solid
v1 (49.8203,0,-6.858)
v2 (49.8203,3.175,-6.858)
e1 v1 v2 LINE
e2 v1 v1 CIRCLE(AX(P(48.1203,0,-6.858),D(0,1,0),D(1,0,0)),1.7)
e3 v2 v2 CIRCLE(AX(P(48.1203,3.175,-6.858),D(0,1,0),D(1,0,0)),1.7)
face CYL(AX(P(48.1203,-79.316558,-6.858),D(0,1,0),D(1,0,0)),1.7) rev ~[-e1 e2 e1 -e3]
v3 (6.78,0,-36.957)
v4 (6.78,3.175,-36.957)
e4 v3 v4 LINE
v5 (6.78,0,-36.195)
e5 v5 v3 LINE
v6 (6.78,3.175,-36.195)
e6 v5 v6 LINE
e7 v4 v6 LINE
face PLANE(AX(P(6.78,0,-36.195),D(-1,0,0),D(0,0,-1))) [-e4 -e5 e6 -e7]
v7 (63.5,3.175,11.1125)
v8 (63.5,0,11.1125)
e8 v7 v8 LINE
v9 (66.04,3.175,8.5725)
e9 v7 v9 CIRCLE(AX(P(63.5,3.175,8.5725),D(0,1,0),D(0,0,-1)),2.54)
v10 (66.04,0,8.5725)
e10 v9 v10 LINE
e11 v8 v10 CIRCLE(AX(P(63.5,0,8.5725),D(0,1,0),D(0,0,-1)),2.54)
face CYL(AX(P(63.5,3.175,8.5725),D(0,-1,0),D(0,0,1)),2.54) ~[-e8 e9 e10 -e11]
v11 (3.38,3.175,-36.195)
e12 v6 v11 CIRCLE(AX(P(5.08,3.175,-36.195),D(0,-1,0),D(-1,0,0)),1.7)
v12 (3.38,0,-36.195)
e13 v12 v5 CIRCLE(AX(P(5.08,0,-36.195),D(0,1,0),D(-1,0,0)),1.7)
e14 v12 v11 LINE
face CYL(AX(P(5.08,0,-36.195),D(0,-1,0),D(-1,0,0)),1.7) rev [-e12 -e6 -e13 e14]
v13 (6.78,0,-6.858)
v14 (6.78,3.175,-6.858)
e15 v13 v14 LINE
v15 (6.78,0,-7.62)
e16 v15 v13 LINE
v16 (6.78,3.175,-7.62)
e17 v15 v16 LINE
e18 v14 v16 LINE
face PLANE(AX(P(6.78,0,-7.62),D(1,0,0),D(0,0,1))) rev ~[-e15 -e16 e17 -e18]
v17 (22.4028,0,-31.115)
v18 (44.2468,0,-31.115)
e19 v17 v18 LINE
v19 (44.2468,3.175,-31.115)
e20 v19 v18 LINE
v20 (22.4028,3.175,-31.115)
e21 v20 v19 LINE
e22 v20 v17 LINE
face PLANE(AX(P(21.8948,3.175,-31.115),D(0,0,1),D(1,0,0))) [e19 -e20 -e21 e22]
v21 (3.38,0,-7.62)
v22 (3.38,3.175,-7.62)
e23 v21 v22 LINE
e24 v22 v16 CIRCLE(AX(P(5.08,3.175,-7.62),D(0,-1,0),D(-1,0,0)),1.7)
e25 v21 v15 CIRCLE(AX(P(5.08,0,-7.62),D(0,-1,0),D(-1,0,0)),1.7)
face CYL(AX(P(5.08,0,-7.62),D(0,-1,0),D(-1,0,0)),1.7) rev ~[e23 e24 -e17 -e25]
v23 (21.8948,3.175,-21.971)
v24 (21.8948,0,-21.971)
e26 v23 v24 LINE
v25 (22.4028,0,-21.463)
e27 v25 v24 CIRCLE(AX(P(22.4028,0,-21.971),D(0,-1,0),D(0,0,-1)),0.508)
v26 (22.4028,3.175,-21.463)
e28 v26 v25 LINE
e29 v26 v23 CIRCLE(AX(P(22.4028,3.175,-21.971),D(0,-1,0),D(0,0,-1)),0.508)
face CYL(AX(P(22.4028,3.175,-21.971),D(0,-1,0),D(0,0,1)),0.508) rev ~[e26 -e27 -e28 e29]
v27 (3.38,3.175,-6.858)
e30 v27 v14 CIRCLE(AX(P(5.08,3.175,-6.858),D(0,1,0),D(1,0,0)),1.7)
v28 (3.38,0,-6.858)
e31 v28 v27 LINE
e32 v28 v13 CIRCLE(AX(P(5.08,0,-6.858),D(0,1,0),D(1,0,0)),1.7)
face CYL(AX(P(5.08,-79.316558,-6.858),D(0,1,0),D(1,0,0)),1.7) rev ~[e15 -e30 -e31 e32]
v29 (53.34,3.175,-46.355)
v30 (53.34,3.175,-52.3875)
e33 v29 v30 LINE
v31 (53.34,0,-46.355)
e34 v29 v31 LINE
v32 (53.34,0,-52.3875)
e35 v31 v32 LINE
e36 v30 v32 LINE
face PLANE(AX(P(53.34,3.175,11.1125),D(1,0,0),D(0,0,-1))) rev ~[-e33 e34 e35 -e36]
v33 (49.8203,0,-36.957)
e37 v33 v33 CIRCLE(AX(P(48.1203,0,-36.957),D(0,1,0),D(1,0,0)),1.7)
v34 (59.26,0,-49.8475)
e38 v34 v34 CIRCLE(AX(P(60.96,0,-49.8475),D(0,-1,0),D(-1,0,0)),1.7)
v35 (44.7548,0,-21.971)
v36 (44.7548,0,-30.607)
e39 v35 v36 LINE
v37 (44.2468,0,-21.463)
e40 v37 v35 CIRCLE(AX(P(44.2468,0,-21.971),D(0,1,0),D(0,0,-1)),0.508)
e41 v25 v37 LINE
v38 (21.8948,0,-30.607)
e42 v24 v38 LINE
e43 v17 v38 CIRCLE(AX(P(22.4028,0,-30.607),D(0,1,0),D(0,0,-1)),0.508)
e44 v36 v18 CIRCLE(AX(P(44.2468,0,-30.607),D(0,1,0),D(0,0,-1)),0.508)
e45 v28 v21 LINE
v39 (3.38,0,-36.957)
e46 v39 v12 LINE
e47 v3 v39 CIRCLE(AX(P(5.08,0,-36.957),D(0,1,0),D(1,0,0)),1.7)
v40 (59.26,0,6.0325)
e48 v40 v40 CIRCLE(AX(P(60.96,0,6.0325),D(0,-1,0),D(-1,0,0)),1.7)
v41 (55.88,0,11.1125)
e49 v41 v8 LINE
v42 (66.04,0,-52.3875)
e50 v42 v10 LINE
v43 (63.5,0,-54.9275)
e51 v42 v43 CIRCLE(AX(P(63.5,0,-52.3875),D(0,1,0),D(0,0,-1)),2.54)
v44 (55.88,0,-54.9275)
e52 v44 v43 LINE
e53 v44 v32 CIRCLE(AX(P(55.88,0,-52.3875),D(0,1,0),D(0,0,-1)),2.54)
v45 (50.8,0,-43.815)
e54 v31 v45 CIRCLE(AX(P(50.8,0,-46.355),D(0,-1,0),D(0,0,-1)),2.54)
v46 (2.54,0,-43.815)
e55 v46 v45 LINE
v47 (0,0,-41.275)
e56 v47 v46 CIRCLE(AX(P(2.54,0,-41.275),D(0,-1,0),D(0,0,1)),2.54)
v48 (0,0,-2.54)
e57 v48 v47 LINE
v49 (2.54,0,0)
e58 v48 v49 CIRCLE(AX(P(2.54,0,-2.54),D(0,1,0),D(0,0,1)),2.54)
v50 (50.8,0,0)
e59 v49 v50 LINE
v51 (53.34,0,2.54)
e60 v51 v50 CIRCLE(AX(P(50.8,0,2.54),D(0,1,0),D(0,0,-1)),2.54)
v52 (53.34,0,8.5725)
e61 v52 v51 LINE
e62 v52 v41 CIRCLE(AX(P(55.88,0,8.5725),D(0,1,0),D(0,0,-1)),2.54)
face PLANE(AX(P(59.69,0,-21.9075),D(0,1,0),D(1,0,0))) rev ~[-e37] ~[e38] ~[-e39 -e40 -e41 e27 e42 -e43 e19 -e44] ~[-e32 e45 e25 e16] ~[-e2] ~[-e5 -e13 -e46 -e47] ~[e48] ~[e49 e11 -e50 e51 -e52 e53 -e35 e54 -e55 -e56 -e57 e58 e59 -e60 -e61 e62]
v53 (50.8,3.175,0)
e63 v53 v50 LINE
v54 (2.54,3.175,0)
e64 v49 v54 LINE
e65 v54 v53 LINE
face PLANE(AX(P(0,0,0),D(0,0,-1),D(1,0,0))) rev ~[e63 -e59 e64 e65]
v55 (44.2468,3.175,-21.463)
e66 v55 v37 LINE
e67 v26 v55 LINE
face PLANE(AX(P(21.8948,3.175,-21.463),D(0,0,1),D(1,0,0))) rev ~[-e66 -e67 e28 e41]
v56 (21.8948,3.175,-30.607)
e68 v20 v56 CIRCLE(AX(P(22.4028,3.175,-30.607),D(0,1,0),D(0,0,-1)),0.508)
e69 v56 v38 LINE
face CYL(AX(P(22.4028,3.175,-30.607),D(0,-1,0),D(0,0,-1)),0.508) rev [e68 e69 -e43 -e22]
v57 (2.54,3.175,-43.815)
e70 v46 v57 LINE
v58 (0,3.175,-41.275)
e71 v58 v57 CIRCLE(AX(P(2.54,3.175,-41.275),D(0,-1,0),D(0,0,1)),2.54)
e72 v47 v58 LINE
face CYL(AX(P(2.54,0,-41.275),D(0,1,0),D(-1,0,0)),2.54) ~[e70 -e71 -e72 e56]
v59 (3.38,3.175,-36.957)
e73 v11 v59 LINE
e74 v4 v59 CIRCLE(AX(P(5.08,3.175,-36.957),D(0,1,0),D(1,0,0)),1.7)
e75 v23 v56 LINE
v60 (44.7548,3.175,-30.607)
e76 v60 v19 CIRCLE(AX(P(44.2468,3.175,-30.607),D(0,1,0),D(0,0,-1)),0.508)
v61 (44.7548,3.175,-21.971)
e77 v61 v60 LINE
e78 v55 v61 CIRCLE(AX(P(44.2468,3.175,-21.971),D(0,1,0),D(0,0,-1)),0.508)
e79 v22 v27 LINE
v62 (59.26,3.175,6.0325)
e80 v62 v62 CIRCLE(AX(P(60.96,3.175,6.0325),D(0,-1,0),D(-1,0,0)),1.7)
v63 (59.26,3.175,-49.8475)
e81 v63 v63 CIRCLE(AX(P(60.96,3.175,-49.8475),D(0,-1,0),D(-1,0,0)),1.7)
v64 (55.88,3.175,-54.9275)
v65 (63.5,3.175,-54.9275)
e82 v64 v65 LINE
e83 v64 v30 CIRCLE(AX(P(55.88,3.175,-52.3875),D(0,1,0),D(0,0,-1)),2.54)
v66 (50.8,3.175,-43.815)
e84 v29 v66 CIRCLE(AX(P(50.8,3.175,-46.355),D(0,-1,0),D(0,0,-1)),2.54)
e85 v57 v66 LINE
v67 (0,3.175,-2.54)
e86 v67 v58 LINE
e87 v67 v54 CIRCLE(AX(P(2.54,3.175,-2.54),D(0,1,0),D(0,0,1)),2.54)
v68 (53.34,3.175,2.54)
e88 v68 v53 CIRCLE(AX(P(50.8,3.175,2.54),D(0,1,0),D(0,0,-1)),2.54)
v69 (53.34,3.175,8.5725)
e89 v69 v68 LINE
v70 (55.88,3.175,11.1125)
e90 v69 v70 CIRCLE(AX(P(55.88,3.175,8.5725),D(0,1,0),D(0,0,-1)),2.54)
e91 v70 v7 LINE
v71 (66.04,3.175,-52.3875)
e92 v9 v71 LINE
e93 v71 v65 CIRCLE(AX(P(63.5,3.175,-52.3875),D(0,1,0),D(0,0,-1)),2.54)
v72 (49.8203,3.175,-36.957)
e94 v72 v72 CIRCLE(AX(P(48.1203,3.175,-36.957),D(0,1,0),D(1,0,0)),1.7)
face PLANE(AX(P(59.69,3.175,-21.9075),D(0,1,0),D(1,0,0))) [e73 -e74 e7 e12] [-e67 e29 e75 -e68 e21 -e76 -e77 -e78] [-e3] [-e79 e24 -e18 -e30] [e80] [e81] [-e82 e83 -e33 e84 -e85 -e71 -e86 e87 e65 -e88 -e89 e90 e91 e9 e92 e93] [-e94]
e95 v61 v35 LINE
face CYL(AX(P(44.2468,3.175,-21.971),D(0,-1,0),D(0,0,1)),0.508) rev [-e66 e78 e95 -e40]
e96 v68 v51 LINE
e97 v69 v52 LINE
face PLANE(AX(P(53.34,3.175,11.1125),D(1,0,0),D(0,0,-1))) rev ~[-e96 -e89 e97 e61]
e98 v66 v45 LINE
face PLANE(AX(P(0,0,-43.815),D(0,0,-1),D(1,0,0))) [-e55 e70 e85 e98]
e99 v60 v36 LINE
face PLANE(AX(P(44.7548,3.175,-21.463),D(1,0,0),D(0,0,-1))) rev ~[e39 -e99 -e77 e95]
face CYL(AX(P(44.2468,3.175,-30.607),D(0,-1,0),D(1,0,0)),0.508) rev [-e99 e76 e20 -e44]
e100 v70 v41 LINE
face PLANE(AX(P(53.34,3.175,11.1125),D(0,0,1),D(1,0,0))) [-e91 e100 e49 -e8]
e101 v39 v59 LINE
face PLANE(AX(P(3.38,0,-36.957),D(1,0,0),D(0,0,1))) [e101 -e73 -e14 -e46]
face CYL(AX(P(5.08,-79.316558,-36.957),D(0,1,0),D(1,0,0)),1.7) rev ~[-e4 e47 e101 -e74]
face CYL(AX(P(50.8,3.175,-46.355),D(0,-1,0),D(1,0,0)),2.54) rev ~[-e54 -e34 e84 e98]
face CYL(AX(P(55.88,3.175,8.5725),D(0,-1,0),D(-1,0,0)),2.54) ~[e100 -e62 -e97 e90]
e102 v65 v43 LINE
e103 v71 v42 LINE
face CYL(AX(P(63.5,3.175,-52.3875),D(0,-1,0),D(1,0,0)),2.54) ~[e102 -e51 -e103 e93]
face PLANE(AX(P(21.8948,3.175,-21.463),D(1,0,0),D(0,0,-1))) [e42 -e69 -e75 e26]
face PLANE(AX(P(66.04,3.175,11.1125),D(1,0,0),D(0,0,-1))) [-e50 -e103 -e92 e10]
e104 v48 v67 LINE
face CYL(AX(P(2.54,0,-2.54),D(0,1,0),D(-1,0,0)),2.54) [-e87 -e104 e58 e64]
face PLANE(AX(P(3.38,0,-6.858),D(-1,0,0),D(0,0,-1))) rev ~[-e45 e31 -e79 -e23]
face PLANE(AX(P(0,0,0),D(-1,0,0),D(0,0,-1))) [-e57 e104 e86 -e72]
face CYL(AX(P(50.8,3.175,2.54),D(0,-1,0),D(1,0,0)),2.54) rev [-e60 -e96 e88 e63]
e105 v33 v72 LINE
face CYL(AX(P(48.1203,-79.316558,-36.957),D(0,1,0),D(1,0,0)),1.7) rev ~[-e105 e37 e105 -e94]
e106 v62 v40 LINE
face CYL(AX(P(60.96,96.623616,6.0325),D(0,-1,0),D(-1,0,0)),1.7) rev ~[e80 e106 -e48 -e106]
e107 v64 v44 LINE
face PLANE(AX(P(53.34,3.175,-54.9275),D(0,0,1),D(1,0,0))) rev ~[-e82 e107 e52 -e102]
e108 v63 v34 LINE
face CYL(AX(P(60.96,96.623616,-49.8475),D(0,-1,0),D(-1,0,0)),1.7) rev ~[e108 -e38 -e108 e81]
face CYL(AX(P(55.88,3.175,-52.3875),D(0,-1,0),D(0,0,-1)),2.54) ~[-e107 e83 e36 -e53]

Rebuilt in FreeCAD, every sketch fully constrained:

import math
import FreeCAD as App
import Part
import Sketcher

V = App.Vector
Q = App.Units.Quantity


def edges_at(feature, points):
    """Names of the edges that pass closest to the given points."""
    edges = feature.Shape.Edges
    near = lambda p: min(range(len(edges)), key=lambda i: edges[i].distToShape(Part.Vertex(*p))[0])
    return sorted({f"Edge{near(p) + 1}" for p in points})

doc = App.newDocument("Part")
body = doc.addObject("PartDesign::Body", "Body")

sketch1 = body.newObject("Sketcher::SketchObject", "Sketch")
sketch1.AttachmentSupport = (doc.getObject("XZ_Plane"), [""])
sketch1.MapMode = "FlatFace"
sketch1.addGeometry(Part.LineSegment(V(0, -44, 0), V(0, 0, 0)), False)
sketch1.addGeometry(Part.LineSegment(V(0, 0, 0), V(66, 0, 0)), False)
sketch1.addGeometry(Part.LineSegment(V(66, 0, 0), V(66, -44, 0)), False)
sketch1.addGeometry(Part.LineSegment(V(66, -44, 0), V(0, -44, 0)), False)
sketch1.addConstraint(Sketcher.Constraint("Coincident", 0, 2, 1, 1))
sketch1.addConstraint(Sketcher.Constraint("Coincident", 1, 2, 2, 1))
sketch1.addConstraint(Sketcher.Constraint("Coincident", 2, 2, 3, 1))
sketch1.addConstraint(Sketcher.Constraint("Coincident", 3, 2, 0, 1))
sketch1.addConstraint(Sketcher.Constraint("Vertical", 0))
sketch1.addConstraint(Sketcher.Constraint("Horizontal", 1))
sketch1.addConstraint(Sketcher.Constraint("Vertical", 2))
sketch1.addConstraint(Sketcher.Constraint("Horizontal", 3))
sketch1.addConstraint(Sketcher.Constraint("Coincident", 0, 2, -1, 1))
sketch1.addConstraint(Sketcher.Constraint("DistanceX", 1, 1, 1, 2, Q("2.6 in")))
sketch1.addConstraint(Sketcher.Constraint("DistanceY", 0, 1, 0, 2, Q("1.725 in")))
pad1 = body.newObject("PartDesign::Pad", "Pad")
pad1.Profile = sketch1
pad1.Length = Q("0.125 in")
pad1.Reversed = True

sketch2 = body.newObject("Sketcher::SketchObject", "Sketch001")
sketch2.AttachmentSupport = (doc.getObject("XZ_Plane"), [""])
sketch2.MapMode = "FlatFace"
sketch2.addGeometry(Part.Circle(V(5.1, -6.9, 0), V(0, 0, 1), 1.7), False)
sketch2.addGeometry(Part.Circle(V(5.1, -37, 0), V(0, 0, 1), 1.7), False)
sketch2.addGeometry(Part.Circle(V(48.1, -37, 0), V(0, 0, 1), 1.7), False)
sketch2.addGeometry(Part.Circle(V(48.1, -6.9, 0), V(0, 0, 1), 1.7), False)
sketch2.addGeometry(Part.Circle(V(61, -6.9, 0), V(0, 0, 1), 1.7), False)
sketch2.addGeometry(Part.Circle(V(61, -37, 0), V(0, 0, 1), 1.7), False)
sketch2.addConstraint(Sketcher.Constraint("Equal", 0, 1))
sketch2.addConstraint(Sketcher.Constraint("Equal", 1, 2))
sketch2.addConstraint(Sketcher.Constraint("Equal", 2, 3))
sketch2.addConstraint(Sketcher.Constraint("Equal", 3, 4))
sketch2.addConstraint(Sketcher.Constraint("Equal", 4, 5))
sketch2.addConstraint(Sketcher.Constraint("Horizontal", 1, 3, 2, 3))
sketch2.addConstraint(Sketcher.Constraint("Horizontal", 0, 3, 3, 3))
sketch2.addConstraint(Sketcher.Constraint("Horizontal", 3, 3, 4, 3))
sketch2.addConstraint(Sketcher.Constraint("Horizontal", 2, 3, 5, 3))
sketch2.addConstraint(Sketcher.Constraint("Vertical", 0, 3, 1, 3))
sketch2.addConstraint(Sketcher.Constraint("Vertical", 2, 3, 3, 3))
sketch2.addConstraint(Sketcher.Constraint("Vertical", 4, 3, 5, 3))
sketch2.addConstraint(Sketcher.Constraint("DistanceX", -1, 1, 0, 3, Q("0.2 in")))
sketch2.addConstraint(Sketcher.Constraint("DistanceX", -1, 1, 4, 3, Q("2.4 in")))
sketch2.addConstraint(Sketcher.Constraint("Diameter", 0, Q("3.4 mm")))
sketch2.addConstraint(Sketcher.Constraint("DistanceY", 0, 3, -1, 1, Q("0.27 in")))
sketch2.addConstraint(Sketcher.Constraint("DistanceY", 1, 3, -1, 1, Q("1.455 in")))
sketch2.addConstraint(Sketcher.Constraint("DistanceX", -1, 1, 2, 3, Q("1.8945 in")))
doc.recompute()
hole = body.newObject("PartDesign::Hole", "Hole")
hole.Profile = sketch2
hole.ThreadType = "None"
hole.Diameter = 3.4
hole.DepthType = "ThroughAll"

sketch3 = body.newObject("Sketcher::SketchObject", "Sketch002")
sketch3.AttachmentSupport = (doc.getObject("XZ_Plane"), [""])
sketch3.MapMode = "FlatFace"
sketch3.AttachmentOffset = App.Placement(V(0, 0, -0.125 * 25.4), App.Rotation())
sketch3.addGeometry(Part.LineSegment(V(22, -31, 0), V(22, -21, 0)), False)
sketch3.addGeometry(Part.LineSegment(V(22, -21, 0), V(45, -21, 0)), False)
sketch3.addGeometry(Part.LineSegment(V(45, -21, 0), V(45, -31, 0)), False)
sketch3.addGeometry(Part.LineSegment(V(45, -31, 0), V(22, -31, 0)), False)
sketch3.addConstraint(Sketcher.Constraint("Coincident", 0, 2, 1, 1))
sketch3.addConstraint(Sketcher.Constraint("Coincident", 1, 2, 2, 1))
sketch3.addConstraint(Sketcher.Constraint("Coincident", 2, 2, 3, 1))
sketch3.addConstraint(Sketcher.Constraint("Coincident", 3, 2, 0, 1))
sketch3.addConstraint(Sketcher.Constraint("Vertical", 0))
sketch3.addConstraint(Sketcher.Constraint("Horizontal", 1))
sketch3.addConstraint(Sketcher.Constraint("Vertical", 2))
sketch3.addConstraint(Sketcher.Constraint("Horizontal", 3))
sketch3.addConstraint(Sketcher.Constraint("DistanceX", 1, 1, 1, 2, Q("0.9 in")))
sketch3.addConstraint(Sketcher.Constraint("DistanceY", 0, 1, 0, 2, Q("0.38 in")))
sketch3.addConstraint(Sketcher.Constraint("DistanceX", -1, 1, 0, 2, Q("0.862 in")))
sketch3.addConstraint(Sketcher.Constraint("DistanceY", 0, 2, -1, 1, Q("0.845 in")))
pocket1 = body.newObject("PartDesign::Pocket", "Pocket")
pocket1.Profile = sketch3
pocket1.Type = "ThroughAll"
pocket1.Reversed = True
doc.recompute()

fillet = body.newObject("PartDesign::Fillet", "Fillet")
fillet.Base = (pocket1, edges_at(pocket1, [
    (44.755, 1.587, -21.463),
    (21.895, 1.587, -21.463),
    (21.895, 1.587, -31.115),
    (44.755, 1.587, -31.115),
]))
fillet.Radius = Q("0.02 in")
doc.recompute()

fillet2 = body.newObject("PartDesign::Fillet", "Fillet001")
fillet2.Base = (fillet, edges_at(fillet, [
    (0, 1.587, -43.815),
    (66.04, 1.587, -43.815),
    (66.04, 1.587, 0),
    (0, 1.587, 0),
]))
fillet2.Radius = Q("0.1 in")

sketch4 = body.newObject("Sketcher::SketchObject", "Sketch003")
sketch4.AttachmentSupport = (doc.getObject("XZ_Plane"), [""])
sketch4.MapMode = "FlatFace"
sketch4.AttachmentOffset = App.Placement(V(0, 0, -0.125 * 25.4), App.Rotation())
sketch4.addGeometry(Part.LineSegment(V(53, -55, 0), V(53, 11, 0)), False)
sketch4.addGeometry(Part.LineSegment(V(53, 11, 0), V(66, 11, 0)), False)
sketch4.addGeometry(Part.LineSegment(V(66, 11, 0), V(66, -55, 0)), False)
sketch4.addGeometry(Part.LineSegment(V(66, -55, 0), V(53, -55, 0)), False)
sketch4.addConstraint(Sketcher.Constraint("Coincident", 0, 2, 1, 1))
sketch4.addConstraint(Sketcher.Constraint("Coincident", 1, 2, 2, 1))
sketch4.addConstraint(Sketcher.Constraint("Coincident", 2, 2, 3, 1))
sketch4.addConstraint(Sketcher.Constraint("Coincident", 3, 2, 0, 1))
sketch4.addConstraint(Sketcher.Constraint("Vertical", 0))
sketch4.addConstraint(Sketcher.Constraint("Horizontal", 1))
sketch4.addConstraint(Sketcher.Constraint("Vertical", 2))
sketch4.addConstraint(Sketcher.Constraint("Horizontal", 3))
sketch4.addConstraint(Sketcher.Constraint("DistanceX", 1, 1, 1, 2, Q("0.5 in")))
sketch4.addConstraint(Sketcher.Constraint("DistanceY", 0, 1, 0, 2, Q("2.6 in")))
sketch4.addConstraint(Sketcher.Constraint("DistanceX", -1, 1, 0, 2, Q("2.1 in")))
sketch4.addConstraint(Sketcher.Constraint("DistanceY", -1, 1, 0, 2, Q("0.4375 in")))
pad2 = body.newObject("PartDesign::Pad", "Pad001")
pad2.Profile = sketch4
pad2.Length = Q("0.125 in")

sketch5 = body.newObject("Sketcher::SketchObject", "Sketch004")
sketch5.AttachmentSupport = (doc.getObject("XZ_Plane"), [""])
sketch5.MapMode = "FlatFace"
sketch5.AttachmentOffset = App.Placement(V(0, 0, -0.125 * 25.4), App.Rotation())
sketch5.addGeometry(Part.Circle(V(61, -49.8, 0), V(0, 0, 1), 1.7), False)
sketch5.addGeometry(Part.Circle(V(61, 6, 0), V(0, 0, 1), 1.7), False)
sketch5.addConstraint(Sketcher.Constraint("Equal", 0, 1))
sketch5.addConstraint(Sketcher.Constraint("Vertical", 0, 3, 1, 3))
sketch5.addConstraint(Sketcher.Constraint("DistanceX", -1, 1, 0, 3, Q("2.4 in")))
sketch5.addConstraint(Sketcher.Constraint("DistanceY", 0, 3, 1, 3, Q("2.2 in")))
sketch5.addConstraint(Sketcher.Constraint("Diameter", 0, Q("3.4 mm")))
sketch5.addConstraint(Sketcher.Constraint("DistanceY", 0, 3, -1, 1, Q("1.9625 in")))
doc.recompute()
hole2 = body.newObject("PartDesign::Hole", "Hole001")
hole2.Profile = sketch5
hole2.ThreadType = "None"
hole2.Diameter = 3.4
hole2.DepthType = "ThroughAll"
hole2.Reversed = True
doc.recompute()

fillet3 = body.newObject("PartDesign::Fillet", "Fillet002")
fillet3.Base = (hole2, edges_at(hole2, [
    (53.34, 1.587, 11.113),
    (66.04, 1.587, -54.928),
    (53.34, 1.587, -54.928),
    (53.34, 1.587, 0),
    (53.34, 1.587, -43.815),
    (66.04, 1.587, 11.113),
]))
fillet3.Radius = Q("0.1 in")

sketch6 = body.newObject("Sketcher::SketchObject", "Sketch005")
sketch6.AttachmentSupport = (doc.getObject("XZ_Plane"), [""])
sketch6.MapMode = "FlatFace"
sketch6.addGeometry(Part.LineSegment(V(3.4, -6.9, 0), V(3.4, -7.6, 0)), False)
sketch6.addGeometry(Part.ArcOfCircle(Part.Circle(V(5.1, -7.6, 0), V(0, 0, 1), 1.7), math.radians(180), math.radians(360)), False)
sketch6.addGeometry(Part.LineSegment(V(6.8, -7.6, 0), V(6.8, -6.9, 0)), False)
sketch6.addGeometry(Part.ArcOfCircle(Part.Circle(V(5.1, -6.9, 0), V(0, 0, 1), 1.7), math.radians(0), math.radians(180)), False)
sketch6.addGeometry(Part.LineSegment(V(6.8, -37, 0), V(6.8, -36.2, 0)), False)
sketch6.addGeometry(Part.ArcOfCircle(Part.Circle(V(5.1, -36.2, 0), V(0, 0, 1), 1.7), math.radians(0), math.radians(180)), False)
sketch6.addGeometry(Part.LineSegment(V(3.4, -36.2, 0), V(3.4, -37, 0)), False)
sketch6.addGeometry(Part.ArcOfCircle(Part.Circle(V(5.1, -37, 0), V(0, 0, 1), 1.7), math.radians(180), math.radians(360)), False)
sketch6.addConstraint(Sketcher.Constraint("Tangent", 0, 2, 1, 1))
sketch6.addConstraint(Sketcher.Constraint("Tangent", 1, 2, 2, 1))
sketch6.addConstraint(Sketcher.Constraint("Tangent", 2, 2, 3, 1))
sketch6.addConstraint(Sketcher.Constraint("Tangent", 3, 2, 0, 1))
sketch6.addConstraint(Sketcher.Constraint("Tangent", 4, 2, 5, 1))
sketch6.addConstraint(Sketcher.Constraint("Tangent", 5, 2, 6, 1))
sketch6.addConstraint(Sketcher.Constraint("Tangent", 6, 2, 7, 1))
sketch6.addConstraint(Sketcher.Constraint("Tangent", 7, 2, 4, 1))
sketch6.addConstraint(Sketcher.Constraint("Vertical", 0))
sketch6.addConstraint(Sketcher.Constraint("Vertical", 2))
sketch6.addConstraint(Sketcher.Constraint("Vertical", 4))
sketch6.addConstraint(Sketcher.Constraint("Vertical", 6))
sketch6.addConstraint(Sketcher.Constraint("Equal", 3, 5))
sketch6.addConstraint(Sketcher.Constraint("Vertical", 3, 3, 5, 3))
sketch6.addConstraint(Sketcher.Constraint("Equal", 2, 4))
sketch6.addConstraint(Sketcher.Constraint("DistanceY", 0, 2, 0, 1, Q("0.03 in")))
sketch6.addConstraint(Sketcher.Constraint("DistanceX", -1, 1, 1, 3, Q("0.2 in")))
sketch6.addConstraint(Sketcher.Constraint("DistanceY", 1, 3, -1, 1, Q("0.3 in")))
sketch6.addConstraint(Sketcher.Constraint("Radius", 1, Q("1.7 mm")))
sketch6.addConstraint(Sketcher.Constraint("DistanceY", 5, 3, -1, 1, Q("1.425 in")))
pocket2 = body.newObject("PartDesign::Pocket", "Pocket001")
pocket2.Profile = sketch6
pocket2.Type = "ThroughAll"

doc.recompute()
